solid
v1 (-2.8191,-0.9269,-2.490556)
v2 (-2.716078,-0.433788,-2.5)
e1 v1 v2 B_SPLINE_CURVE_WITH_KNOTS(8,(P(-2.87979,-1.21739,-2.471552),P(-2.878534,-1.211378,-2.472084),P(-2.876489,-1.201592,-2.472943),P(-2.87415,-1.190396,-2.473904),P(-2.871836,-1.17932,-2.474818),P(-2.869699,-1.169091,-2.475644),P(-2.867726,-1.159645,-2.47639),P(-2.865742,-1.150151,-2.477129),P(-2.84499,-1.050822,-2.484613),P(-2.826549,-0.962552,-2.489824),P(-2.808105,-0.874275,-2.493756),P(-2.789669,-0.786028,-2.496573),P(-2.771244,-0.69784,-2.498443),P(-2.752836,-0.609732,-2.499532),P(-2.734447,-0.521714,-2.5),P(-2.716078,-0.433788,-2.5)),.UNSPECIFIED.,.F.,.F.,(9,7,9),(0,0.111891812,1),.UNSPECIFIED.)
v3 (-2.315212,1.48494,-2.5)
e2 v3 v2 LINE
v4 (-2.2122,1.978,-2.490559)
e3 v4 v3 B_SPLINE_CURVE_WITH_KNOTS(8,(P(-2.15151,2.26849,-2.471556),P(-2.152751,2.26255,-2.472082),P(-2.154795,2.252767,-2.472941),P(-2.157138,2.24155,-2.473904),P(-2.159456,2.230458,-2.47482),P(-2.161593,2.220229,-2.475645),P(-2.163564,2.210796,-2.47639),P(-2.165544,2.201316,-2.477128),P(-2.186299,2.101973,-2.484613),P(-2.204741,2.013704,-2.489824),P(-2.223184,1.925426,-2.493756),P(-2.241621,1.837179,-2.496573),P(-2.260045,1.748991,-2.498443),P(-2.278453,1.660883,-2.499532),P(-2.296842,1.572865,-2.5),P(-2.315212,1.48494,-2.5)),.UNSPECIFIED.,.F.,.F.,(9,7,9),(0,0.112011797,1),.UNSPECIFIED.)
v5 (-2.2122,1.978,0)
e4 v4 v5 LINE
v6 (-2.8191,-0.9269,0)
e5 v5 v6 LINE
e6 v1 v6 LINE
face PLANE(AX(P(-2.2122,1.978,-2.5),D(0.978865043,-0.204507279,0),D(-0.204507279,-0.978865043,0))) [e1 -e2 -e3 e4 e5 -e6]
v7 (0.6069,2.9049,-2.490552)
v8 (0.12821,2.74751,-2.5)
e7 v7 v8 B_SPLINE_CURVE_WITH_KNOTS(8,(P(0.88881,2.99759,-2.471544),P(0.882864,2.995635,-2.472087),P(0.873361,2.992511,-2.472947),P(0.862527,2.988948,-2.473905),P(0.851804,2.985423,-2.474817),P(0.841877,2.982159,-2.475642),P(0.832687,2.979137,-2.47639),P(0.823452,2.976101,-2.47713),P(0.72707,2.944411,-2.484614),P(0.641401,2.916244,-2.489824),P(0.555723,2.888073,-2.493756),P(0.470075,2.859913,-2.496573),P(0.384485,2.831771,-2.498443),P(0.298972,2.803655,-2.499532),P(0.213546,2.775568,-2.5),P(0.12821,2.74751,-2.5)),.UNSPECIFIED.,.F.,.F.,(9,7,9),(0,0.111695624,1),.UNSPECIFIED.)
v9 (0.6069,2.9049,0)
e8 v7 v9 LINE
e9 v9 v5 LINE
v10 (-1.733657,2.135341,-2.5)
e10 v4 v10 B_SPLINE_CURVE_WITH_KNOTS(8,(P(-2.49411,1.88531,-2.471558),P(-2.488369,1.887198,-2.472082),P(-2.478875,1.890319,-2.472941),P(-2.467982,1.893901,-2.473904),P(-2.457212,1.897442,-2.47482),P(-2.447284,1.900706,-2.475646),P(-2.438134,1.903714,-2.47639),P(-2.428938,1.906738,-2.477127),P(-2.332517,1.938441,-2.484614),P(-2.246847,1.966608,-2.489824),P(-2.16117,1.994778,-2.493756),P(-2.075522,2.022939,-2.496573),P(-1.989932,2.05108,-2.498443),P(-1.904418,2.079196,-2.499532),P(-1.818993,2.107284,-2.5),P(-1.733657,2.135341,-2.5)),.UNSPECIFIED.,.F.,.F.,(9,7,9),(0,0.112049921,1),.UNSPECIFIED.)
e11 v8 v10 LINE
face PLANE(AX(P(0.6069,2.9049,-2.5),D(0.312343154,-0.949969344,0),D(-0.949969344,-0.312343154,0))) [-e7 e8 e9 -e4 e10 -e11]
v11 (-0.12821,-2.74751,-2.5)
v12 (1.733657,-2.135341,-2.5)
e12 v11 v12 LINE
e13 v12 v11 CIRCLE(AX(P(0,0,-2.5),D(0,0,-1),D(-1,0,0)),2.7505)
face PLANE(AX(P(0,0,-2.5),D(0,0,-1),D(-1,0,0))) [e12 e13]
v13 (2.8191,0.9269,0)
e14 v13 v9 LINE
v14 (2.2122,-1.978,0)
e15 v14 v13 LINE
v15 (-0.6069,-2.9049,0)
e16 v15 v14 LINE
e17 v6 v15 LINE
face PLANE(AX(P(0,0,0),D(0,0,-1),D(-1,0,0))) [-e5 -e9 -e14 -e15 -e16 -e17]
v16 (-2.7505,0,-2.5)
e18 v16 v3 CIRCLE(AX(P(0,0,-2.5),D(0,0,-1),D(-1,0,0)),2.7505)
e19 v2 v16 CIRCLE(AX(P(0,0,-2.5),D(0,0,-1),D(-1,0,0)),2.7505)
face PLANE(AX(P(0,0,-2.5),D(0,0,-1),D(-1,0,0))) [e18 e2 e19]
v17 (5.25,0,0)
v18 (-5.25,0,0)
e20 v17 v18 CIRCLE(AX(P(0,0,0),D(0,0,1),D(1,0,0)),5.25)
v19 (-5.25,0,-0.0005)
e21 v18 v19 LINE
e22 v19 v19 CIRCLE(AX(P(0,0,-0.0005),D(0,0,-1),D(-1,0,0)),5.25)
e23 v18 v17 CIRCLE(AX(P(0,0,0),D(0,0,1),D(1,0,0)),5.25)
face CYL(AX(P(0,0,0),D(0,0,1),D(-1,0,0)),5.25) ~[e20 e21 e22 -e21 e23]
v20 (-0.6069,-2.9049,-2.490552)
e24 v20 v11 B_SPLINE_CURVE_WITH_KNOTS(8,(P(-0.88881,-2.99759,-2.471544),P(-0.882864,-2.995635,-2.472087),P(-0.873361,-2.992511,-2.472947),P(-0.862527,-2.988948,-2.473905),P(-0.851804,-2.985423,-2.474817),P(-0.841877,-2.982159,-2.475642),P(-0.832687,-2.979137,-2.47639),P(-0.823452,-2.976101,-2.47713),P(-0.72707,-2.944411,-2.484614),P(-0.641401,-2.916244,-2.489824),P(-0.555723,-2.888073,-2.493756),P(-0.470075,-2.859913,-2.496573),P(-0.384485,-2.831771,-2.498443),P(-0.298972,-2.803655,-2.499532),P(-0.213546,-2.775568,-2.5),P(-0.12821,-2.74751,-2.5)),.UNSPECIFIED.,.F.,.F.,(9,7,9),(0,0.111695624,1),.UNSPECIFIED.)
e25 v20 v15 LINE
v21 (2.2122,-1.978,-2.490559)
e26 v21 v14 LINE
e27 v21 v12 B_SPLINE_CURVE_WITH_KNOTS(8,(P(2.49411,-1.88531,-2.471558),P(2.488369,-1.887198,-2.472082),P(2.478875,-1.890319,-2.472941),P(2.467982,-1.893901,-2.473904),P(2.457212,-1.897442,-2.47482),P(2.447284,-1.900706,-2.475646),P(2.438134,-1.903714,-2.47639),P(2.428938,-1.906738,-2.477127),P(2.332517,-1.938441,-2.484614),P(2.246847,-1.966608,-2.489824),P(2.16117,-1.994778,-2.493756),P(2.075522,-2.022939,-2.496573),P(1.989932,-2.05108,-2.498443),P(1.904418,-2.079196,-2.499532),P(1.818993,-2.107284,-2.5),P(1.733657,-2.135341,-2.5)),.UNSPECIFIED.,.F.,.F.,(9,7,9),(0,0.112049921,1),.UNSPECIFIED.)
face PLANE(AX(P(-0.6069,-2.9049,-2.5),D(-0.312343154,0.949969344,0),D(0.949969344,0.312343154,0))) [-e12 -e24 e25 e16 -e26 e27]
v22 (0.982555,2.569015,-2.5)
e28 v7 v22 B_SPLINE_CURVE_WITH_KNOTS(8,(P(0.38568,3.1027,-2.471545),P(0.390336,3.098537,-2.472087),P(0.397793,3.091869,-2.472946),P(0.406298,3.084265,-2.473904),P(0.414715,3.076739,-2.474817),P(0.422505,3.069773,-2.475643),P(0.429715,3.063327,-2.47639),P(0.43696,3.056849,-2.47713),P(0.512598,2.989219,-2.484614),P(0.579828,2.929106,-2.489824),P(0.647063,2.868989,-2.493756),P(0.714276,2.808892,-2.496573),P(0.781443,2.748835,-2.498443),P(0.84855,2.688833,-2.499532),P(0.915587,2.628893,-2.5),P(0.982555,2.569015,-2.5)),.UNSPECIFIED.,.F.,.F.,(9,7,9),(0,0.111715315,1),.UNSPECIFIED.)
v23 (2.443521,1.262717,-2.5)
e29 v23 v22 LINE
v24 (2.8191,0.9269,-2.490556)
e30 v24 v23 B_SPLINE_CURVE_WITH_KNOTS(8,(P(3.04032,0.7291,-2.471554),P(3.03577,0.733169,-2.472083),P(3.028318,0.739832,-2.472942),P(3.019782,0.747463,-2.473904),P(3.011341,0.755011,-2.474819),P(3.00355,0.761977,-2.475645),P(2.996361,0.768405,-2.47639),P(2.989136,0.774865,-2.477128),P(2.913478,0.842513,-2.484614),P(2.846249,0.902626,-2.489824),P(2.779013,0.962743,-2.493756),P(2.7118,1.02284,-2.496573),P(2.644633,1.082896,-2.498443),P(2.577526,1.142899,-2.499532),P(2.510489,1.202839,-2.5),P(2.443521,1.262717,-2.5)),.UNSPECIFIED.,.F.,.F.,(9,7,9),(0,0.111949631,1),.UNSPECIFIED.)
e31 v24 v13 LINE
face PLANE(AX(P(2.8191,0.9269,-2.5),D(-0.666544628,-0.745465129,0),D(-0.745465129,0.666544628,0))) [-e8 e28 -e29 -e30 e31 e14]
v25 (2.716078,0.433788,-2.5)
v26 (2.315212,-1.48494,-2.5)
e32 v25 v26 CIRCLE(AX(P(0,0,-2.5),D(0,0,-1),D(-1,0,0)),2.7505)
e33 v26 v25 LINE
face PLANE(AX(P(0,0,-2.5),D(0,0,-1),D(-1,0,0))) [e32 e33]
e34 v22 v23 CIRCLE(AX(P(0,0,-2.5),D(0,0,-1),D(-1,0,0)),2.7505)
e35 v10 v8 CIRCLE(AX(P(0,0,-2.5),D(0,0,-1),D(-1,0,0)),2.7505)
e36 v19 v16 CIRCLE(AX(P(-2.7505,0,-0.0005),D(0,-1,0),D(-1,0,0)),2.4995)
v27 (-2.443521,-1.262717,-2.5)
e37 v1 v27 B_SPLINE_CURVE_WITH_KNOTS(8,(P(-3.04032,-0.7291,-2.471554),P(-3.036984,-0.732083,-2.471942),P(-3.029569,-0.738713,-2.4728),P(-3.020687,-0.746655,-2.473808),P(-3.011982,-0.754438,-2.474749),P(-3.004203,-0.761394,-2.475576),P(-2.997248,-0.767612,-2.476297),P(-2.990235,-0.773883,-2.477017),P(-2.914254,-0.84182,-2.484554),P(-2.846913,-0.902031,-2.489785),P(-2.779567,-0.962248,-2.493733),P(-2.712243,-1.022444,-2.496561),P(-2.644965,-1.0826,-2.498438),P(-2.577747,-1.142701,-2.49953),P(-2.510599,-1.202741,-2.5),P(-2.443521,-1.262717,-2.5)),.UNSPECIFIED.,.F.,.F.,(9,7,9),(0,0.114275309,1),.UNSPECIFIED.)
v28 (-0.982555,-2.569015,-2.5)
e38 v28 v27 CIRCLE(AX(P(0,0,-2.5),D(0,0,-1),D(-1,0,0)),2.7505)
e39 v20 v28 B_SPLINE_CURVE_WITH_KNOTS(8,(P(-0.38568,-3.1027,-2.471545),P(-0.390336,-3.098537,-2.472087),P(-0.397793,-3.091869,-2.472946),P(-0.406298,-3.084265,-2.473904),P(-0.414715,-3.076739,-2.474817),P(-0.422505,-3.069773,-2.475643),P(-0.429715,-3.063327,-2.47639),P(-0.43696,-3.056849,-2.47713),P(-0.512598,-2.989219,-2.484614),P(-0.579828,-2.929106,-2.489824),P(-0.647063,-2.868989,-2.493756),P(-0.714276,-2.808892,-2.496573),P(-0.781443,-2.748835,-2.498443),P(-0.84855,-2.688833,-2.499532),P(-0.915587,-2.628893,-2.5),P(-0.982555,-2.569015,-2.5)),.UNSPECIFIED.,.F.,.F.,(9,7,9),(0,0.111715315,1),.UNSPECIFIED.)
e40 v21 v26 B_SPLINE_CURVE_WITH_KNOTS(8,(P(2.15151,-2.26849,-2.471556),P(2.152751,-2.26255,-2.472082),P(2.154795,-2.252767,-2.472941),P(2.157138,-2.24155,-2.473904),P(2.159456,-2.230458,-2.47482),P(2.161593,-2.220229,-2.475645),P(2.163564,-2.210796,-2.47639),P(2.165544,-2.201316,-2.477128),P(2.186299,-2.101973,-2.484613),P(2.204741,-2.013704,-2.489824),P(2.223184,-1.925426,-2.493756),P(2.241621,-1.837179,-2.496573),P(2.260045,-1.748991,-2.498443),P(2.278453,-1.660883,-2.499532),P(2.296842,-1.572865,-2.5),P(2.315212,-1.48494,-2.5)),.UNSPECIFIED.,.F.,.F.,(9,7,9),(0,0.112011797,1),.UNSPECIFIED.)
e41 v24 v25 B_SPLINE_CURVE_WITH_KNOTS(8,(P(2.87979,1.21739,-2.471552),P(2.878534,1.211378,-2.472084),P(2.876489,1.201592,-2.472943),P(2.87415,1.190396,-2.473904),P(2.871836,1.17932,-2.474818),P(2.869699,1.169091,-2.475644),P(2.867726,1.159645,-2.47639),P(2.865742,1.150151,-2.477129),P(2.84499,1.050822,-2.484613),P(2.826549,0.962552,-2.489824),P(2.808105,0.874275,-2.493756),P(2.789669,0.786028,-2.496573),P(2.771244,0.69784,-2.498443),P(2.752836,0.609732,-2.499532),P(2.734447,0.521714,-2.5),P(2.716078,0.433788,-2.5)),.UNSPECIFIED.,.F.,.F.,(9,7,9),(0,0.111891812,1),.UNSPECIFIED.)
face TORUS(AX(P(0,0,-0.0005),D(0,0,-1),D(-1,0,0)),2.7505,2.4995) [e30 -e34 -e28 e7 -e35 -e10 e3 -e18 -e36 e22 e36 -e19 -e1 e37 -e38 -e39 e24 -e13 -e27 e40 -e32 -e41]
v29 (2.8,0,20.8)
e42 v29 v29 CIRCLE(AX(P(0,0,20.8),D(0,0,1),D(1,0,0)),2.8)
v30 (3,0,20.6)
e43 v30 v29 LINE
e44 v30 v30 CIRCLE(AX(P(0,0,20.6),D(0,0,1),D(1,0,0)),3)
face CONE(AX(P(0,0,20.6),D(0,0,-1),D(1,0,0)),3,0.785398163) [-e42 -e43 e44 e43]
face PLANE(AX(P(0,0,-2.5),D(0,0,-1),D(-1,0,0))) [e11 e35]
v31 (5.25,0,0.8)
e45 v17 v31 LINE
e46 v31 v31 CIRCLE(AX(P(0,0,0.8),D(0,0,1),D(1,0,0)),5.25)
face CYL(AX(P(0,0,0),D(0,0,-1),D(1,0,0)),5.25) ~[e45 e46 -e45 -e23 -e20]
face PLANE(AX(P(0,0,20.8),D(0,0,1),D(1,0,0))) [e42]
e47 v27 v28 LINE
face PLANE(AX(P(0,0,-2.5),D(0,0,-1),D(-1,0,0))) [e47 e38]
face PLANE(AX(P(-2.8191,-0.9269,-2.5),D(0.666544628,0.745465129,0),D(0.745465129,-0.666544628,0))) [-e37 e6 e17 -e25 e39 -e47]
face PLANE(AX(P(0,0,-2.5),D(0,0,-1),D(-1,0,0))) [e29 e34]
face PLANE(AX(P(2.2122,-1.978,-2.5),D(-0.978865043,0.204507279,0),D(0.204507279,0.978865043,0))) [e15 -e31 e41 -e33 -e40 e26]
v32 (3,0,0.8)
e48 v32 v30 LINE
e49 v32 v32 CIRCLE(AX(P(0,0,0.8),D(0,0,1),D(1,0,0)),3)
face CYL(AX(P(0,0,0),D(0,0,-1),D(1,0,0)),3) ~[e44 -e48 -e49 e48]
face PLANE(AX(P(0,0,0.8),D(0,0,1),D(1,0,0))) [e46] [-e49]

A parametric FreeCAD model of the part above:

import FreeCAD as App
import Part
import Sketcher
Q = App.Units.Quantity


def edges_at(feature, points):
    """Names of the edges that pass closest to the given points."""
    edges = feature.Shape.Edges
    near = lambda p: min(range(len(edges)), key=lambda i: edges[i].distToShape(Part.Vertex(*p))[0])
    return sorted({f"Edge{near(p) + 1}" for p in points})


def add_polygon(sketch, points):
    """Adds a closed chain of lines whose ends are joined by coincident constraints."""
    first, n = sketch.GeometryCount, len(points)
    for a, b in zip(points, points[1:] + points[:1]):
        sketch.addGeometry(Part.LineSegment(App.Vector(*a, 0), App.Vector(*b, 0)), False)
    for i in range(n):
        sketch.addConstraint(Sketcher.Constraint("Coincident", first + i, 2, first + (i + 1) % n, 1))

doc = App.newDocument("Part")
body = doc.addObject("PartDesign::Body", "Body")

# Sketch on XY plane
sketch1 = body.newObject("Sketcher::SketchObject", "Sketch")
sketch1.AttachmentSupport = (doc.getObject("XY_Plane"), [""])
sketch1.MapMode = "FlatFace"
sketch1.addGeometry([
    Part.Circle(App.Vector(0, 0, 0), App.Vector(0, 0, 1), 5.2),
    Part.Circle(App.Vector(0, 0, 0), App.Vector(0, 0, 1), 3),
], False)
sketch1.addConstraint([
    Sketcher.Constraint("Coincident", 0, 3, -1, 1),
    Sketcher.Constraint("Coincident", 1, 3, -1, 1),
    Sketcher.Constraint("Diameter", 1, Q("6 mm")),
    Sketcher.Constraint("Diameter", 0, Q("10.5 mm")),
])
pad1 = body.newObject("PartDesign::Pad", "Pad")
pad1.Profile = sketch1
pad1.Length = 0.8

# Sketch on XY plane
sketch2 = body.newObject("Sketcher::SketchObject", "Sketch001")
sketch2.AttachmentSupport = (doc.getObject("XY_Plane"), [""])
sketch2.MapMode = "FlatFace"
sketch2.addGeometry(Part.Circle(App.Vector(0, 0, 0), App.Vector(0, 0, 1), 3), False)
sketch2.addConstraint([
    Sketcher.Constraint("Coincident", 0, 3, -1, 1),
    Sketcher.Constraint("Diameter", 0, Q("6 mm")),
])
pad2 = body.newObject("PartDesign::Pad", "Pad001")
pad2.Profile = sketch2
pad2.Length = 20.8

# Sketch on XY plane
sketch3 = body.newObject("Sketcher::SketchObject", "Sketch002")
sketch3.AttachmentSupport = (doc.getObject("XY_Plane"), [""])
sketch3.MapMode = "FlatFace"
sketch3.addGeometry(Part.Circle(App.Vector(0, 0, 0), App.Vector(0, 0, 1), 5), False)
sketch3.addConstraint([
    Sketcher.Constraint("Coincident", 0, 3, -1, 1),
    Sketcher.Constraint("Diameter", 0, Q("10.5 mm")),
])
pad3 = body.newObject("PartDesign::Pad", "Pad002")
pad3.Profile = sketch3
pad3.Length = 2.5
pad3.Reversed = True
doc.recompute()

fillet = body.newObject("PartDesign::Fillet", "Fillet")
fillet.Base = (pad3, edges_at(pad3, [(5.25, 0, -2.5)]))
fillet.Radius = 2.5

# Sketch on XY plane
sketch4 = body.newObject("Sketcher::SketchObject", "Sketch003")
sketch4.AttachmentSupport = (doc.getObject("XY_Plane"), [""])
sketch4.MapMode = "FlatFace"
sketch4.AttachmentOffset = App.Placement(App.Vector(0, 0, -2.5), App.Rotation())
add_polygon(sketch4, [(2.8, 0.9), (2.2, -2), (-0.6, -2.9), (-2.8, -0.9), (-2.2, 2), (0.6, 2.9)])  # lines 0-5
sketch4.addConstraint([
    Sketcher.Constraint("Symmetric", 0, 2, 3, 2, -1, 1),
    Sketcher.Constraint("Symmetric", 1, 2, 4, 2, -1, 1),
    Sketcher.Constraint("Symmetric", 2, 2, 5, 2, -1, 1),
    Sketcher.Constraint("Equal", 0, 1),
    Sketcher.Constraint("Equal", 1, 2),
    Sketcher.Constraint("Angle", 0, Q("-101.8007 deg")),
    Sketcher.Constraint("Angle", 1, Q("-161.7995 deg")),
    Sketcher.Constraint("Angle", 2, Q("138.199 deg")),
    Sketcher.Constraint("DistanceY", 0, 2, -1, 1, Q("1.978 mm")),
])
pocket1 = body.newObject("PartDesign::Pocket", "Pocket")
pocket1.Profile = sketch4
pocket1.Length = 2.5
pocket1.Reversed = True
doc.recompute()

chamfer = body.newObject("PartDesign::Chamfer", "Chamfer")
chamfer.Base = (pocket1, edges_at(pocket1, [(-3, 0, 20.8)]))
chamfer.Size = 0.2

doc.recompute()
